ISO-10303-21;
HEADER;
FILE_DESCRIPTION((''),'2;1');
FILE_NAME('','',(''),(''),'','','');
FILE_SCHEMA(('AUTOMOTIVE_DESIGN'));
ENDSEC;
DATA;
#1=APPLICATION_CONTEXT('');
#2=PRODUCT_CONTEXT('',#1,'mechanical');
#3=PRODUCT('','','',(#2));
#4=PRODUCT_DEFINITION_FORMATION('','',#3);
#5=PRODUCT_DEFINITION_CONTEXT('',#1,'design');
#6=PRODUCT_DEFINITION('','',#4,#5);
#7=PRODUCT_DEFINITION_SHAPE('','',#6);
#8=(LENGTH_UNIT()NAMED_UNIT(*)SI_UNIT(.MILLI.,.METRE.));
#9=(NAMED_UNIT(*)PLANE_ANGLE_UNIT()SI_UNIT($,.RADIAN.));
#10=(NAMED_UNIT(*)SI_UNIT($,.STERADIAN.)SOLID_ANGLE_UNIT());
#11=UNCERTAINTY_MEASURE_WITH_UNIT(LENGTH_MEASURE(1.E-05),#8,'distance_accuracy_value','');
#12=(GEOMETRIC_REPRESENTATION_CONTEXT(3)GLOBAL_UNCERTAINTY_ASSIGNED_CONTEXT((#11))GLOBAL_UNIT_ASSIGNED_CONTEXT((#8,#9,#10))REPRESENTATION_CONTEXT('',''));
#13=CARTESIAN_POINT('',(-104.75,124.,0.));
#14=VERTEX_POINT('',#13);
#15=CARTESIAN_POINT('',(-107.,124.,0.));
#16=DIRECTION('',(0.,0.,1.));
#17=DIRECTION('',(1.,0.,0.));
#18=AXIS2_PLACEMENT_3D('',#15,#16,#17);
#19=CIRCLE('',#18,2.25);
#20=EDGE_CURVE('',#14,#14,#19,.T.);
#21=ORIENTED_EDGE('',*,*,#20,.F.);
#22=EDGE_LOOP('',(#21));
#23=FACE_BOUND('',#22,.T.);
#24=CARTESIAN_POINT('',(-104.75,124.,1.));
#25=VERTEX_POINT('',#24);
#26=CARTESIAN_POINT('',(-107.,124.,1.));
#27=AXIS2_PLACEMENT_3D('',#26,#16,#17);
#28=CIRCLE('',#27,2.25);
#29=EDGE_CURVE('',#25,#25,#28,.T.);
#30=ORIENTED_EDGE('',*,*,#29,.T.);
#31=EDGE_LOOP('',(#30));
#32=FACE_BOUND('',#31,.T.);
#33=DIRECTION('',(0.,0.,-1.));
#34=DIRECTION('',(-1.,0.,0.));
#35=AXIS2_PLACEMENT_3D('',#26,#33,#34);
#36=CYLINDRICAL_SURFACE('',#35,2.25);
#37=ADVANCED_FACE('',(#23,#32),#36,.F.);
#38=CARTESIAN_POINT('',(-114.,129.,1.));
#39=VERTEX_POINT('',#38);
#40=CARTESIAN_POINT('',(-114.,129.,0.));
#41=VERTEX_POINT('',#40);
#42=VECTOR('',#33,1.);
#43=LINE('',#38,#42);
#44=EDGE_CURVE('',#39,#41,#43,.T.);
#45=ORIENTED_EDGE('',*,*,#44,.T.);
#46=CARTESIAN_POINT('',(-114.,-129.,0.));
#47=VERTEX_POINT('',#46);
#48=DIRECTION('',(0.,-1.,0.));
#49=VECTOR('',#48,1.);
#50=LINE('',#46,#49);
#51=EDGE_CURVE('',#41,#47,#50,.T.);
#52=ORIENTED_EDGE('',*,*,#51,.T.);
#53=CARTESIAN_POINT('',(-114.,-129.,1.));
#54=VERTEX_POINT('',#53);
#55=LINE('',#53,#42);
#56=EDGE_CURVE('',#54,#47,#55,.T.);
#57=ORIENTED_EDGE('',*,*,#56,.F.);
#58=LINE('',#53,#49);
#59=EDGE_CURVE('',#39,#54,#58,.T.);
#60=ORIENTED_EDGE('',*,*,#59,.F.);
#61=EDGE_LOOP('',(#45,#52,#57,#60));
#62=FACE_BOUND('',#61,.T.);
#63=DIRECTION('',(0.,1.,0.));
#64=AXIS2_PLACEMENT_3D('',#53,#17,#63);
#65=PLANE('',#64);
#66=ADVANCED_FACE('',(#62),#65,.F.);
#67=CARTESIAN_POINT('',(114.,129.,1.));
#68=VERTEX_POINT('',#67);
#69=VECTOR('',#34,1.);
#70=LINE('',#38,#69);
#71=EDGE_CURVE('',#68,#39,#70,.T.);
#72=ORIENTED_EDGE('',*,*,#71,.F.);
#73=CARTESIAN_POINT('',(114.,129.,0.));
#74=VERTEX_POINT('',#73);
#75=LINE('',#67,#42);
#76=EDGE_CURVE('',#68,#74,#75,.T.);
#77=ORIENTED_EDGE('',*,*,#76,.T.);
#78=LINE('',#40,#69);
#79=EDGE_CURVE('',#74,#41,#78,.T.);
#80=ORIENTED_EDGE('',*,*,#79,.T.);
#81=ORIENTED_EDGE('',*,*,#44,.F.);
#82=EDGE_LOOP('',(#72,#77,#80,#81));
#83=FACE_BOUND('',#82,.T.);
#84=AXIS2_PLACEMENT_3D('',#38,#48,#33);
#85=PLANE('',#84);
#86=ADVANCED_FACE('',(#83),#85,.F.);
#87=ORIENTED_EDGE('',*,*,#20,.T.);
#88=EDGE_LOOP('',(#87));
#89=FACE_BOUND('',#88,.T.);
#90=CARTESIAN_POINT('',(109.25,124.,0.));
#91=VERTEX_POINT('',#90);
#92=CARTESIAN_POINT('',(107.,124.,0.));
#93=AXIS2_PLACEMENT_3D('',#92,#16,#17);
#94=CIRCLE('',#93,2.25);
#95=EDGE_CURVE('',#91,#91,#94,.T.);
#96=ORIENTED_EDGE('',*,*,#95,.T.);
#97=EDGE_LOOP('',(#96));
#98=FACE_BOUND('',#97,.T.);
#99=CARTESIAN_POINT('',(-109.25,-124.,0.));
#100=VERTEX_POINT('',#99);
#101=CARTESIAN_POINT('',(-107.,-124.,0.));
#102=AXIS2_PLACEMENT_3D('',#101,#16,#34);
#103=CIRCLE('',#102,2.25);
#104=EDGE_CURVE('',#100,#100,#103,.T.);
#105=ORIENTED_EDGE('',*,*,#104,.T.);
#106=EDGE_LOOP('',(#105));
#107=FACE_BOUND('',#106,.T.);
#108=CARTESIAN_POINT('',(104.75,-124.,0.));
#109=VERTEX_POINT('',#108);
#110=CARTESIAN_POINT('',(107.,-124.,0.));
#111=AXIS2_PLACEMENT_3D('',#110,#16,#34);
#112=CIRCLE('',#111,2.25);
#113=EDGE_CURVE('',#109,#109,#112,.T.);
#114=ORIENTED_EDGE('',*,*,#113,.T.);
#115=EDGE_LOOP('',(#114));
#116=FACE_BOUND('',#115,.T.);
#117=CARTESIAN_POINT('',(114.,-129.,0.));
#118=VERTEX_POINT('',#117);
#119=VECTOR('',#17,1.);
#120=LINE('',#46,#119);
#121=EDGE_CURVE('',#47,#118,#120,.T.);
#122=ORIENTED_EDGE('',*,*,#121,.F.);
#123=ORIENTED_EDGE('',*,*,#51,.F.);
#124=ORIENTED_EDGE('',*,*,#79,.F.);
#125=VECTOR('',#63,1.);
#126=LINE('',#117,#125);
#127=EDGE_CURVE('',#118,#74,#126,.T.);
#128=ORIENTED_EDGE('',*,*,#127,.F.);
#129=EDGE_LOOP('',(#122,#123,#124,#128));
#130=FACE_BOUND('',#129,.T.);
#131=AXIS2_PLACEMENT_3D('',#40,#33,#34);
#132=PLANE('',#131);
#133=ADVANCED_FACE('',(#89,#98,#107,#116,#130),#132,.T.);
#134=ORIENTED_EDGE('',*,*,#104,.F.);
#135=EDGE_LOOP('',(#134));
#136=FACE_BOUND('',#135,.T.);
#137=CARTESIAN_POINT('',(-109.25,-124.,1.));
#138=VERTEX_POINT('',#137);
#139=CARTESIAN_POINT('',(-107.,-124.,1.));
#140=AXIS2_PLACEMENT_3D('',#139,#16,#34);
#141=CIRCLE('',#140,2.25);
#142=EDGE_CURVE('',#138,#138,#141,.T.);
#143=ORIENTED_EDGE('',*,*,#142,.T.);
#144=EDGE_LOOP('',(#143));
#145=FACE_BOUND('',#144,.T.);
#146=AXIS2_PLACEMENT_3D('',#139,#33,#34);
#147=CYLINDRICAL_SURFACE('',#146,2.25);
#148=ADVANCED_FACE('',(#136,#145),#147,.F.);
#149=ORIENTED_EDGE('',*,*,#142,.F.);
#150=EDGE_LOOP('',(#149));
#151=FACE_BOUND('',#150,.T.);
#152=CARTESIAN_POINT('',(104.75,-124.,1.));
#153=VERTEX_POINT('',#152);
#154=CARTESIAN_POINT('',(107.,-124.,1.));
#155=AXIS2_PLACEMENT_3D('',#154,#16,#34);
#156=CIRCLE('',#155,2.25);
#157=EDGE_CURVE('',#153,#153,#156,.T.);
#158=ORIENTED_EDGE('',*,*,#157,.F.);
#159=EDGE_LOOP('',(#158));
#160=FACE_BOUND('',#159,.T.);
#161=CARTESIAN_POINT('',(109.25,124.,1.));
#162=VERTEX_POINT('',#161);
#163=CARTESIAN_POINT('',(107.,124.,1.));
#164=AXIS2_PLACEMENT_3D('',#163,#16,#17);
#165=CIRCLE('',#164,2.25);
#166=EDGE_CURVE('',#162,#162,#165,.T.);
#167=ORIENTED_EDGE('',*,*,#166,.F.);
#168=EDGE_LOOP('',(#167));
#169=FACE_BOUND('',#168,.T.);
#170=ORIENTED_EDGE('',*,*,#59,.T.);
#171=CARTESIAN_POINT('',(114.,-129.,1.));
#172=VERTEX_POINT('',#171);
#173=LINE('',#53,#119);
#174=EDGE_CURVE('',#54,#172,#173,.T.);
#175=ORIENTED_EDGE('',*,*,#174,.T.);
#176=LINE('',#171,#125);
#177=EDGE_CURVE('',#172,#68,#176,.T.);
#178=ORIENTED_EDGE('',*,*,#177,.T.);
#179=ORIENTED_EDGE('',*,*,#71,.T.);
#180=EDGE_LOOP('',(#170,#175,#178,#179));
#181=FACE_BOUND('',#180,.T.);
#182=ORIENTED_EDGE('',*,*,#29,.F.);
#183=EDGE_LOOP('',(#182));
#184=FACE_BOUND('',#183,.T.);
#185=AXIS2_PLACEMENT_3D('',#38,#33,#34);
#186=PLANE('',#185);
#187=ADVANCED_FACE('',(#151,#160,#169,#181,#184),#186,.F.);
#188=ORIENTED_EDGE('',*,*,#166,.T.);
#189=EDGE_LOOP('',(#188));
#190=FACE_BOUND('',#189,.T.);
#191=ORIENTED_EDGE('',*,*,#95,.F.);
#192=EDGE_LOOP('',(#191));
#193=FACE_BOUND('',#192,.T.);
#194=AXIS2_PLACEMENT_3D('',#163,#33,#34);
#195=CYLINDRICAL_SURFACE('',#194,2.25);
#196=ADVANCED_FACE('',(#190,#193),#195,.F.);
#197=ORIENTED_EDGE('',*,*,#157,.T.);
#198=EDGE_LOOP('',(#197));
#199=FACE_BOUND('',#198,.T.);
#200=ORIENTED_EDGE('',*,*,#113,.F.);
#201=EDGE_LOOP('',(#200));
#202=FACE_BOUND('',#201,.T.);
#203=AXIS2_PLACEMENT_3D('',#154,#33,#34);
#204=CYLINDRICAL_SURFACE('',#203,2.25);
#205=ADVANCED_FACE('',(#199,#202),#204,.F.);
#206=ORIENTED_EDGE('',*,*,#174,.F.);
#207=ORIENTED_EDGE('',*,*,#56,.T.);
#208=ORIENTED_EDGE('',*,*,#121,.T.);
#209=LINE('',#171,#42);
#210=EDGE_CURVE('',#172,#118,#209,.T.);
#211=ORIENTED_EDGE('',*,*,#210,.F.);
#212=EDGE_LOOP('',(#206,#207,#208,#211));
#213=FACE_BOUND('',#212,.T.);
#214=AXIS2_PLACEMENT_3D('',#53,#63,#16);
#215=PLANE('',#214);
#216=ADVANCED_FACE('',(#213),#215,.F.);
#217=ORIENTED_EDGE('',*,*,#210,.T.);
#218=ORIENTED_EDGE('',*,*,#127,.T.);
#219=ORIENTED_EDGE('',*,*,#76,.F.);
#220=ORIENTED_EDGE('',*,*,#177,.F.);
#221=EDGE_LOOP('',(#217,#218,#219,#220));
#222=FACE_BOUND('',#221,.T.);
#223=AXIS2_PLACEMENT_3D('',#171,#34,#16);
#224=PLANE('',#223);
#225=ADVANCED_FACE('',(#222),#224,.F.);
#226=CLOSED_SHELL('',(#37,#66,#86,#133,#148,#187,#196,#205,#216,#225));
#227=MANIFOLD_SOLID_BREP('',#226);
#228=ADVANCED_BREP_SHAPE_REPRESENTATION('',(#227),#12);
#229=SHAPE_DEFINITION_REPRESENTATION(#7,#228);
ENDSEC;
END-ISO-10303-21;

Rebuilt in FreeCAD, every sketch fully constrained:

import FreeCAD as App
import Part
import Sketcher

V = App.Vector
Q = App.Units.Quantity

doc = App.newDocument("Part")
body = doc.addObject("PartDesign::Body", "Body")

# Sketch on XY plane
sketch1 = doc.addObject("Sketcher::SketchObject", "Sketch")
body.addObject(sketch1)
sketch1.AttachmentSupport = (doc.XY_Plane, [""])
sketch1.MapMode = "FlatFace"
sketch1.addGeometry([
    Part.LineSegment(V(-114, 129, 0), V(-114, -129, 0)),  # 0
    Part.LineSegment(V(-114, -129, 0), V(114, -129, 0)),  # 1
    Part.LineSegment(V(114, -129, 0), V(114, 129, 0)),  # 2
    Part.LineSegment(V(114, 129, 0), V(-114, 129, 0)),  # 3
    Part.Circle(V(-107, -124, 0), V(0, 0, 1), 2.25),  # 4
    Part.Circle(V(107, -124, 0), V(0, 0, 1), 2.25),  # 5
    Part.Circle(V(-107, 124, 0), V(0, 0, 1), 2.25),  # 6
    Part.Circle(V(107, 124, 0), V(0, 0, 1), 2.25),  # 7
], False)
sketch1.addConstraint([
    Sketcher.Constraint("Coincident", 0, 2, 1, 1),
    Sketcher.Constraint("Coincident", 1, 2, 2, 1),
    Sketcher.Constraint("Coincident", 2, 2, 3, 1),
    Sketcher.Constraint("Coincident", 3, 2, 0, 1),
    Sketcher.Constraint("Vertical", 0),
    Sketcher.Constraint("Horizontal", 1),
    Sketcher.Constraint("Vertical", 2),
    Sketcher.Constraint("Horizontal", 3),
    Sketcher.Constraint("Equal", 4, 5),
    Sketcher.Constraint("Equal", 5, 6),
    Sketcher.Constraint("Equal", 6, 7),
    Sketcher.Constraint("Symmetric", 5, 3, 6, 3, -1, 1),
    Sketcher.Constraint("Symmetric", 4, 3, 7, 3, -1, 1),
    Sketcher.Constraint("Symmetric", 0, 2, 2, 2, -1, 1),
    Sketcher.Constraint("Symmetric", 4, 3, 5, 3, -2),
    Sketcher.Constraint("Diameter", 4, Q("4.5 mm")),
    Sketcher.Constraint("DistanceX", 1, 1, 1, 2, Q("228 mm")),
    Sketcher.Constraint("DistanceY", 0, 2, 0, 1, Q("258 mm")),
    Sketcher.Constraint("DistanceX", 4, 3, -1, 1, Q("107 mm")),
    Sketcher.Constraint("DistanceY", 4, 3, -1, 1, Q("124 mm")),
])
pad1 = doc.addObject("PartDesign::Pad", "Pad")
body.addObject(pad1)
pad1.Profile = sketch1
pad1.Length = 1

doc.recompute()
